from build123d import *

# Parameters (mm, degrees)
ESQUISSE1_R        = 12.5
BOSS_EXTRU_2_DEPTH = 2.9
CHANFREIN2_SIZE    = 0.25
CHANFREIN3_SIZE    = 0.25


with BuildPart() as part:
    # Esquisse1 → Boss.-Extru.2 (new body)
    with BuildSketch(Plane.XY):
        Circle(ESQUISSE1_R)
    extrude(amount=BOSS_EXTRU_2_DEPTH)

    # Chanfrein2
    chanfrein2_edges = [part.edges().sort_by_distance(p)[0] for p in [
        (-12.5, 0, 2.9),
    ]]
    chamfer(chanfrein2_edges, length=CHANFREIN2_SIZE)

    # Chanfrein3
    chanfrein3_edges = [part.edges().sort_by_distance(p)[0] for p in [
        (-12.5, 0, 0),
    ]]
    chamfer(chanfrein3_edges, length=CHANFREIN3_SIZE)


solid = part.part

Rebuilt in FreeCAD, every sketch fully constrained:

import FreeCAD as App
import Part
import Sketcher

V = App.Vector


def edges_at(feature, points):
    """Names of the edges that pass closest to the given points."""
    edges = feature.Shape.Edges
    near = lambda p: min(range(len(edges)), key=lambda i: edges[i].distToShape(Part.Vertex(*p))[0])
    return sorted({f"Edge{near(p) + 1}" for p in points})

doc = App.newDocument("Part")
body = doc.addObject("PartDesign::Body", "Body")

# Sketch on XY plane
sketch1 = body.newObject("Sketcher::SketchObject", "Sketch")
sketch1.AttachmentSupport = (doc.getObject("XY_Plane"), [""])
sketch1.MapMode = "FlatFace"
sketch1.addGeometry(Part.Circle(V(0, 0, 0), V(0, 0, 1), 12), False)
sketch1.addConstraint([
    Sketcher.Constraint("Coincident", 0, 3, -1, 1),
    Sketcher.Constraint("Diameter", 0, 25.0),
])
pad1 = body.newObject("PartDesign::Pad", "Pad")
pad1.Profile = sketch1
pad1.Length = 2.9
doc.recompute()

chamfer = body.newObject("PartDesign::Chamfer", "Chamfer")
chamfer.Base = (pad1, edges_at(pad1, [(-12.5, 0, 2.9)]))
chamfer.Size = 0.25
doc.recompute()

chamfer2 = body.newObject("PartDesign::Chamfer", "Chamfer001")
chamfer2.Base = (chamfer, edges_at(chamfer, [(-12.5, 0, 0)]))
chamfer2.Size = 0.25

doc.recompute()
